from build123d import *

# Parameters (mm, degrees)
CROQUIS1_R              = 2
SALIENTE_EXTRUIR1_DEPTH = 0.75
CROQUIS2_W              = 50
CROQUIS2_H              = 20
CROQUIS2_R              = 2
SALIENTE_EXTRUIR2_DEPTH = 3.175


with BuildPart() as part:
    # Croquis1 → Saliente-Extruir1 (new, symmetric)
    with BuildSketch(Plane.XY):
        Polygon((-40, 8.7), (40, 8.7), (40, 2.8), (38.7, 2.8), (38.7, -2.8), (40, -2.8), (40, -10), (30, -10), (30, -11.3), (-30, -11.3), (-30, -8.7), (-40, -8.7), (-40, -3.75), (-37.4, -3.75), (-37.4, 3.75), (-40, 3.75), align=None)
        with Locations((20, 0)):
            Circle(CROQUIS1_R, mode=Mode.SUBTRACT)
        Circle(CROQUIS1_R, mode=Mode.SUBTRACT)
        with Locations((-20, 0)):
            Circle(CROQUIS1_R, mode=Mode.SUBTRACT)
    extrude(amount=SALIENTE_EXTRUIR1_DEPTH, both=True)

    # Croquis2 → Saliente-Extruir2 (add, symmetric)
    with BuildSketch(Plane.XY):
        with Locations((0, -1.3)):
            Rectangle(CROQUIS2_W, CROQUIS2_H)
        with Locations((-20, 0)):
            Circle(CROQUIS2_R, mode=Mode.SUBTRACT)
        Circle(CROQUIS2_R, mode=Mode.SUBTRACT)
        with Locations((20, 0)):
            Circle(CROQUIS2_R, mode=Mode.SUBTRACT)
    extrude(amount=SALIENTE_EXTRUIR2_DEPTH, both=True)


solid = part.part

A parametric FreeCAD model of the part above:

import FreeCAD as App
import Part
import Sketcher
Q = App.Units.Quantity

doc = App.newDocument("Part")
body = doc.addObject("PartDesign::Body", "Body")

sketch1 = doc.addObject("Sketcher::SketchObject", "Sketch")
body.addObject(sketch1)
sketch1.AttachmentSupport = (doc.XY_Plane, [""])
sketch1.MapMode = "FlatFace"
sketch1.addGeometry([
    Part.LineSegment(App.Vector(40, 8.7, 0), App.Vector(-40, 8.7, 0)),
    Part.LineSegment(App.Vector(-40, 8.7, 0), App.Vector(-40, 3.8, 0)),
    Part.LineSegment(App.Vector(-40, 3.8, 0), App.Vector(-37.4, 3.8, 0)),
    Part.LineSegment(App.Vector(-37.4, 3.8, 0), App.Vector(-37.4, -3.8, 0)),
    Part.LineSegment(App.Vector(-37.4, -3.8, 0), App.Vector(-40, -3.8, 0)),
    Part.LineSegment(App.Vector(-40, -3.8, 0), App.Vector(-40, -8.7, 0)),
    Part.LineSegment(App.Vector(-40, -8.7, 0), App.Vector(-30, -8.7, 0)),
    Part.LineSegment(App.Vector(-30, -8.7, 0), App.Vector(-30, -11.3, 0)),
    Part.LineSegment(App.Vector(-30, -11.3, 0), App.Vector(30, -11.3, 0)),
    Part.LineSegment(App.Vector(30, -11.3, 0), App.Vector(30, -10, 0)),
    Part.LineSegment(App.Vector(30, -10, 0), App.Vector(40, -10, 0)),
    Part.LineSegment(App.Vector(40, -10, 0), App.Vector(40, -2.8, 0)),
    Part.LineSegment(App.Vector(40, -2.8, 0), App.Vector(38.7, -2.8, 0)),
    Part.LineSegment(App.Vector(38.7, -2.8, 0), App.Vector(38.7, 2.8, 0)),
    Part.LineSegment(App.Vector(38.7, 2.8, 0), App.Vector(40, 2.8, 0)),
    Part.LineSegment(App.Vector(40, 2.8, 0), App.Vector(40, 8.7, 0)),
    Part.Circle(App.Vector(20, 0, 0), App.Vector(0, 0, 1), 2),
    Part.Circle(App.Vector(0, 0, 0), App.Vector(0, 0, 1), 2),
    Part.Circle(App.Vector(-20, 0, 0), App.Vector(0, 0, 1), 2),
], False)
sketch1.addConstraint([
    Sketcher.Constraint("Coincident", 0, 2, 1, 1),
    Sketcher.Constraint("Coincident", 1, 2, 2, 1),
    Sketcher.Constraint("Coincident", 2, 2, 3, 1),
    Sketcher.Constraint("Coincident", 3, 2, 4, 1),
    Sketcher.Constraint("Coincident", 4, 2, 5, 1),
    Sketcher.Constraint("Coincident", 5, 2, 6, 1),
    Sketcher.Constraint("Coincident", 6, 2, 7, 1),
    Sketcher.Constraint("Coincident", 7, 2, 8, 1),
    Sketcher.Constraint("Coincident", 8, 2, 9, 1),
    Sketcher.Constraint("Coincident", 9, 2, 10, 1),
    Sketcher.Constraint("Coincident", 10, 2, 11, 1),
    Sketcher.Constraint("Coincident", 11, 2, 12, 1),
    Sketcher.Constraint("Coincident", 12, 2, 13, 1),
    Sketcher.Constraint("Coincident", 13, 2, 14, 1),
    Sketcher.Constraint("Coincident", 14, 2, 15, 1),
    Sketcher.Constraint("Coincident", 15, 2, 0, 1),
    Sketcher.Constraint("Horizontal", 0),
    Sketcher.Constraint("Vertical", 1),
    Sketcher.Constraint("Horizontal", 2),
    Sketcher.Constraint("Vertical", 3),
    Sketcher.Constraint("Horizontal", 4),
    Sketcher.Constraint("Vertical", 5),
    Sketcher.Constraint("Horizontal", 6),
    Sketcher.Constraint("Vertical", 7),
    Sketcher.Constraint("Horizontal", 8),
    Sketcher.Constraint("Vertical", 9),
    Sketcher.Constraint("Horizontal", 10),
    Sketcher.Constraint("Vertical", 11),
    Sketcher.Constraint("Horizontal", 12),
    Sketcher.Constraint("Vertical", 13),
    Sketcher.Constraint("Horizontal", 14),
    Sketcher.Constraint("Vertical", 15),
    Sketcher.Constraint("Coincident", 17, 3, -1, 1),
    Sketcher.Constraint("Equal", 16, 17),
    Sketcher.Constraint("Equal", 17, 18),
    Sketcher.Constraint("Symmetric", 16, 3, 18, 3, -1, 1),
    Sketcher.Constraint("Symmetric", 5, 2, 15, 2, -1, 1),
    Sketcher.Constraint("Symmetric", 1, 2, 4, 2, -1),
    Sketcher.Constraint("Symmetric", 11, 2, 14, 2, -1),
    Sketcher.Constraint("PointOnObject", 16, 3, -1),
    Sketcher.Constraint("Equal", 6, 10),
    Sketcher.Constraint("Equal", 4, 7),
    Sketcher.Constraint("Equal", 14, 9),
    Sketcher.Constraint("Diameter", 16, Q("4 mm")),
    Sketcher.Constraint("DistanceX", 0, 2, 0, 1, Q("80 mm")),
    Sketcher.Constraint("DistanceX", 6, 1, 6, 2, Q("10 mm")),
    Sketcher.Constraint("DistanceX", 2, 1, 2, 2, Q("2.6 mm")),
    Sketcher.Constraint("DistanceX", 12, 2, 12, 1, Q("1.3 mm")),
    Sketcher.Constraint("DistanceY", 3, 2, 3, 1, Q("7.5 mm")),
    Sketcher.Constraint("DistanceY", 11, 1, 11, 2, Q("7.2 mm")),
    Sketcher.Constraint("DistanceY", 13, 1, 13, 2, Q("5.6 mm")),
    Sketcher.Constraint("DistanceX", -1, 1, 16, 3, Q("20 mm")),
])
pad1 = doc.addObject("PartDesign::Pad", "Pad")
body.addObject(pad1)
pad1.Profile = sketch1
pad1.Length = 1.5
pad1.Midplane = True

sketch2 = doc.addObject("Sketcher::SketchObject", "Sketch001")
body.addObject(sketch2)
sketch2.AttachmentSupport = (doc.XY_Plane, [""])
sketch2.MapMode = "FlatFace"
sketch2.addGeometry([
    Part.LineSegment(App.Vector(-25, 8.7, 0), App.Vector(-25, -11.3, 0)),
    Part.LineSegment(App.Vector(-25, -11.3, 0), App.Vector(25, -11.3, 0)),
    Part.LineSegment(App.Vector(25, -11.3, 0), App.Vector(25, 8.7, 0)),
    Part.LineSegment(App.Vector(25, 8.7, 0), App.Vector(-25, 8.7, 0)),
    Part.Circle(App.Vector(-20, 0, 0), App.Vector(0, 0, 1), 2),
    Part.Circle(App.Vector(0, 0, 0), App.Vector(0, 0, 1), 2),
    Part.Circle(App.Vector(20, 0, 0), App.Vector(0, 0, 1), 2),
], False)
sketch2.addConstraint([
    Sketcher.Constraint("Coincident", 0, 2, 1, 1),
    Sketcher.Constraint("Coincident", 1, 2, 2, 1),
    Sketcher.Constraint("Coincident", 2, 2, 3, 1),
    Sketcher.Constraint("Coincident", 3, 2, 0, 1),
    Sketcher.Constraint("Vertical", 0),
    Sketcher.Constraint("Horizontal", 1),
    Sketcher.Constraint("Vertical", 2),
    Sketcher.Constraint("Horizontal", 3),
    Sketcher.Constraint("Coincident", 5, 3, -1, 1),
    Sketcher.Constraint("Equal", 4, 5),
    Sketcher.Constraint("Equal", 5, 6),
    Sketcher.Constraint("Symmetric", 4, 3, 6, 3, -1, 1),
    Sketcher.Constraint("PointOnObject", 4, 3, -1),
    Sketcher.Constraint("Diameter", 4, Q("4 mm")),
    Sketcher.Constraint("DistanceX", 1, 1, 1, 2, Q("50 mm")),
    Sketcher.Constraint("DistanceY", 0, 2, 0, 1, Q("20 mm")),
    Sketcher.Constraint("DistanceX", 4, 3, -1, 1, Q("20 mm")),
    Sketcher.Constraint("DistanceX", 0, 2, -1, 1, Q("25 mm")),
    Sketcher.Constraint("DistanceY", 0, 2, -1, 1, Q("11.3 mm")),
])
pad2 = doc.addObject("PartDesign::Pad", "Pad001")
body.addObject(pad2)
pad2.Profile = sketch2
pad2.Length = 6.35
pad2.Midplane = True

doc.recompute()
